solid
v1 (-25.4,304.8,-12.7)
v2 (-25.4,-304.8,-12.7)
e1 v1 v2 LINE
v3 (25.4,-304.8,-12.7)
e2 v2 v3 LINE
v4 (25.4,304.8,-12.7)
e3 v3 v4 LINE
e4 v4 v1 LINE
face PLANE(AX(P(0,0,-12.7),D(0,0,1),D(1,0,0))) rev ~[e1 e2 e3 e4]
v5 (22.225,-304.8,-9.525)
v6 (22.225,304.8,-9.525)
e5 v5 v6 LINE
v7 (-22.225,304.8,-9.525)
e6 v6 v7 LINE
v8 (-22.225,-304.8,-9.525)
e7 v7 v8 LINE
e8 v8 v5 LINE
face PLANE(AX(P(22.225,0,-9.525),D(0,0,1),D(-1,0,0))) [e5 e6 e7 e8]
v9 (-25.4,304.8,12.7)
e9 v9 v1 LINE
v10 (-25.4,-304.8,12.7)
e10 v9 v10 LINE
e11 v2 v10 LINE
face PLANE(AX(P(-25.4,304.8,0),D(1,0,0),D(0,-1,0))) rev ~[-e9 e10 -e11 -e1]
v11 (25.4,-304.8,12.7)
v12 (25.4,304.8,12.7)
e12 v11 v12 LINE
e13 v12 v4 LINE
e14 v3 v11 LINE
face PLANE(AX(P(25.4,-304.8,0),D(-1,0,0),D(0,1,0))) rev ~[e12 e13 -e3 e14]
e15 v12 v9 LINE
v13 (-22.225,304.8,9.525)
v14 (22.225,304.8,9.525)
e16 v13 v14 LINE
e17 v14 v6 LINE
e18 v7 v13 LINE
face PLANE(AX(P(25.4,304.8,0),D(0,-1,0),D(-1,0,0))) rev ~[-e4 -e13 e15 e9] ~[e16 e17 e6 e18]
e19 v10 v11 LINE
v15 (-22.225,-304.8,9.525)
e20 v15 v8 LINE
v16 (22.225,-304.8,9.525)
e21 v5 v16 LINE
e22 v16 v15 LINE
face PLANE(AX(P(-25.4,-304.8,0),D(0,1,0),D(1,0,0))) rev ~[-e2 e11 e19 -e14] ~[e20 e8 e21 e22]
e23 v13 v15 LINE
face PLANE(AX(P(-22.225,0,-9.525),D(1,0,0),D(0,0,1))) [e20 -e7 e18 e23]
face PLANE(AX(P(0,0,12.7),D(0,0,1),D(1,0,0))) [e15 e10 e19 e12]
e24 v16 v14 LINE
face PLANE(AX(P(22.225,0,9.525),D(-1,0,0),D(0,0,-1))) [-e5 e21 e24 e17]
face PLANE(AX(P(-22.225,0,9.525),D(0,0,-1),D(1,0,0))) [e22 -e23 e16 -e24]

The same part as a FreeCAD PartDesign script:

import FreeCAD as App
import Part
import Sketcher

V = App.Vector
Q = App.Units.Quantity

doc = App.newDocument("Part")
params = doc.addObject("Spreadsheet::Sheet", "Params")
for row, (alias, value) in enumerate([
    ("sketch1_width", "2 in"),
    ("sketch1_height", "24 in"),
    ("pad1_length", "1 in"),
    ("sketch2_width", "1.75 in"),
    ("sketch2_height", "0.75 in"),
], start=1):
    params.set(f"A{row}", alias)
    params.set(f"B{row}", "=" + value)
    params.setAlias(f"B{row}", alias)

body = doc.addObject("PartDesign::Body", "Body")

# Sketch on XY plane
sketch1 = doc.addObject("Sketcher::SketchObject", "Sketch")
body.addObject(sketch1)
sketch1.AttachmentSupport = (doc.XY_Plane, [""])
sketch1.MapMode = "FlatFace"
sketch1.addGeometry([
    Part.LineSegment(V(-25, 305, 0), V(-25, -305, 0)),
    Part.LineSegment(V(-25, -305, 0), V(25, -305, 0)),
    Part.LineSegment(V(25, -305, 0), V(25, 305, 0)),
    Part.LineSegment(V(25, 305, 0), V(-25, 305, 0)),
], False)
sketch1.addConstraint([
    Sketcher.Constraint("Coincident", 0, 2, 1, 1),
    Sketcher.Constraint("Coincident", 1, 2, 2, 1),
    Sketcher.Constraint("Coincident", 2, 2, 3, 1),
    Sketcher.Constraint("Coincident", 3, 2, 0, 1),
    Sketcher.Constraint("Vertical", 0),
    Sketcher.Constraint("Horizontal", 1),
    Sketcher.Constraint("Vertical", 2),
    Sketcher.Constraint("Horizontal", 3),
    Sketcher.Constraint("Symmetric", 0, 2, 2, 2, -1, 1),
    Sketcher.Constraint("DistanceX", 1, 1, 1, 2, Q("2 in")),
    Sketcher.Constraint("DistanceY", 0, 2, 0, 1, Q("24 in")),
])
sketch1.setExpression("Constraints[9]", "Params.sketch1_width")
sketch1.setExpression("Constraints[10]", "Params.sketch1_height")
pad1 = doc.addObject("PartDesign::Pad", "Pad")
body.addObject(pad1)
pad1.Profile = sketch1
pad1.setExpression("Length", "Params.pad1_length")
pad1.Midplane = True

# Sketch on XZ plane
sketch2 = doc.addObject("Sketcher::SketchObject", "Sketch001")
body.addObject(sketch2)
sketch2.AttachmentSupport = (doc.XZ_Plane, [""])
sketch2.MapMode = "FlatFace"
sketch2.addGeometry([
    Part.LineSegment(V(-22, 10, 0), V(22, 10, 0)),
    Part.LineSegment(V(22, 10, 0), V(22, -10, 0)),
    Part.LineSegment(V(22, -10, 0), V(-22, -10, 0)),
    Part.LineSegment(V(-22, -10, 0), V(-22, 10, 0)),
], False)
sketch2.addConstraint([
    Sketcher.Constraint("Coincident", 0, 2, 1, 1),
    Sketcher.Constraint("Coincident", 1, 2, 2, 1),
    Sketcher.Constraint("Coincident", 2, 2, 3, 1),
    Sketcher.Constraint("Coincident", 3, 2, 0, 1),
    Sketcher.Constraint("Horizontal", 0),
    Sketcher.Constraint("Vertical", 1),
    Sketcher.Constraint("Horizontal", 2),
    Sketcher.Constraint("Vertical", 3),
    Sketcher.Constraint("Symmetric", 0, 2, 2, 2, -1, 1),
    Sketcher.Constraint("DistanceX", 0, 1, 0, 2, Q("1.75 in")),
    Sketcher.Constraint("DistanceY", 1, 2, 1, 1, Q("0.75 in")),
])
sketch2.setExpression("Constraints[9]", "Params.sketch2_width")
sketch2.setExpression("Constraints[10]", "Params.sketch2_height")
pocket1 = doc.addObject("PartDesign::Pocket", "Pocket")
body.addObject(pocket1)
pocket1.Profile = sketch2
pocket1.Type = "ThroughAll"
pocket1.Midplane = True

doc.recompute()
